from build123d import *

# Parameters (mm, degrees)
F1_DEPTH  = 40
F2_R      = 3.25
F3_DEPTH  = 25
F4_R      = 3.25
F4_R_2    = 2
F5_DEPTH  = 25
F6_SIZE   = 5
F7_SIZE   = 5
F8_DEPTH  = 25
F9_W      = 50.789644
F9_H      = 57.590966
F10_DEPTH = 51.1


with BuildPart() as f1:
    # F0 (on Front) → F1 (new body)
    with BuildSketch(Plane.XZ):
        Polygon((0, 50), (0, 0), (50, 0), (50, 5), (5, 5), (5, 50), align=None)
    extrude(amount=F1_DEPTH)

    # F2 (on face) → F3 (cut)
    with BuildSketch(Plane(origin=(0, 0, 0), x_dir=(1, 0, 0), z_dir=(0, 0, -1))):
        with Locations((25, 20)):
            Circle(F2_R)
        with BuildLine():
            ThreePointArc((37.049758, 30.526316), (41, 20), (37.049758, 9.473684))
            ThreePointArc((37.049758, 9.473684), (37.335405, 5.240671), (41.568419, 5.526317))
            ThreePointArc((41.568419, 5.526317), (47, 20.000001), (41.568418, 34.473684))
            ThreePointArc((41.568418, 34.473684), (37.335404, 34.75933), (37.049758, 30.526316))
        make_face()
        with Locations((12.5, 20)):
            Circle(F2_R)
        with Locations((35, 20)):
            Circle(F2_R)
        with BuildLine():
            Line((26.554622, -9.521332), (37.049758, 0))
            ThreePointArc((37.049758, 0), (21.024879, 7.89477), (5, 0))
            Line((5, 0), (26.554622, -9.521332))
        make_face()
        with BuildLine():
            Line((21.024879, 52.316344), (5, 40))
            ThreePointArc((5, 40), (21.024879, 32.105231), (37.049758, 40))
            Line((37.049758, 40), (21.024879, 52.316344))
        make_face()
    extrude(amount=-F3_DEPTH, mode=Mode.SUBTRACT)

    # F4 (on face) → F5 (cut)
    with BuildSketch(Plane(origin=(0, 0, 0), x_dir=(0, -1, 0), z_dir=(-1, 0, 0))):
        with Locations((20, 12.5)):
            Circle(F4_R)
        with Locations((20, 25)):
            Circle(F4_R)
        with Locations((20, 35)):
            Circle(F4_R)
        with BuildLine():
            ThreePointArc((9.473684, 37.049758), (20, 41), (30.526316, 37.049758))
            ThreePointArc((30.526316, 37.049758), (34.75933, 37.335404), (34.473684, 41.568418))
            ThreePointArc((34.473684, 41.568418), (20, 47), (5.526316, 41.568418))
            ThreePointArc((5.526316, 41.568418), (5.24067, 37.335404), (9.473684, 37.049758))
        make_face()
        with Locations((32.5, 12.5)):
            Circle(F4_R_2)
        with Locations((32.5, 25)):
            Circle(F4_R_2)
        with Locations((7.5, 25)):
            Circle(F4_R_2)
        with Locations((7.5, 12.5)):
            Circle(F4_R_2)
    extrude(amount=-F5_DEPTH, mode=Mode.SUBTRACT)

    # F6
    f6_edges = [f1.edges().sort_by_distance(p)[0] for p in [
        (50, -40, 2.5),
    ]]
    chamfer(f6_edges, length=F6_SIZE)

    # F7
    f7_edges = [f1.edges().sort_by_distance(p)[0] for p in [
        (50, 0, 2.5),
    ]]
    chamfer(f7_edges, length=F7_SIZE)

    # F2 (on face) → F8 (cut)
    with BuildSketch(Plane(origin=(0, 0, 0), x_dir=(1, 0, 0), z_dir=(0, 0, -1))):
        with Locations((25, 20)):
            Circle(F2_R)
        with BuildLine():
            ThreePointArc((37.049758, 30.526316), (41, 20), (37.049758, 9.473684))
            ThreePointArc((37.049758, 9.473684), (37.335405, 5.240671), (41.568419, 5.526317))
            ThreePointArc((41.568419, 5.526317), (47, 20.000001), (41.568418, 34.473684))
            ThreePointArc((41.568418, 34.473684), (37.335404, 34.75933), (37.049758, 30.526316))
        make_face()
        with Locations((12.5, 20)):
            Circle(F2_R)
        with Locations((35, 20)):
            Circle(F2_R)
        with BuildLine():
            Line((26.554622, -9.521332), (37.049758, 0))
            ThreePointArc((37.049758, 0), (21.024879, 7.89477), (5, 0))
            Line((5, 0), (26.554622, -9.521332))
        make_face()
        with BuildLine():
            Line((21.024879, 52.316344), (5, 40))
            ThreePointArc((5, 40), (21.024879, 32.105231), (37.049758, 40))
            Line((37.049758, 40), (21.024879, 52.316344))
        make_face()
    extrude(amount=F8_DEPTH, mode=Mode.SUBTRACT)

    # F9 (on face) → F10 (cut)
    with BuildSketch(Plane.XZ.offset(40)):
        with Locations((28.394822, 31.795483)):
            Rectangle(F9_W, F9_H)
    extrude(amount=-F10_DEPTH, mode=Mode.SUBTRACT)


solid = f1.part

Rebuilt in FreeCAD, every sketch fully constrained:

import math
import FreeCAD as App
import Part
import Sketcher


def edges_at(feature, points):
    """Names of the edges that pass closest to the given points."""
    edges = feature.Shape.Edges
    near = lambda p: min(range(len(edges)), key=lambda i: edges[i].distToShape(Part.Vertex(*p))[0])
    return sorted({f"Edge{near(p) + 1}" for p in points})

doc = App.newDocument("Part")
body = doc.addObject("PartDesign::Body", "Body")

# Sketch on XZ plane
sketch1 = body.newObject("Sketcher::SketchObject", "Sketch")
sketch1.AttachmentSupport = (doc.getObject("XZ_Plane"), [""])
sketch1.MapMode = "FlatFace"
sketch1.addGeometry(Part.LineSegment(App.Vector(0, 50, 0), App.Vector(0, 0, 0)), False)
sketch1.addGeometry(Part.LineSegment(App.Vector(0, 0, 0), App.Vector(50, 0, 0)), False)
sketch1.addGeometry(Part.LineSegment(App.Vector(50, 0, 0), App.Vector(50, 5, 0)), False)
sketch1.addGeometry(Part.LineSegment(App.Vector(50, 5, 0), App.Vector(5, 5, 0)), False)
sketch1.addGeometry(Part.LineSegment(App.Vector(5, 5, 0), App.Vector(5, 50, 0)), False)
sketch1.addGeometry(Part.LineSegment(App.Vector(5, 50, 0), App.Vector(0, 50, 0)), False)
sketch1.addConstraint(Sketcher.Constraint("Coincident", 0, 2, 1, 1))
sketch1.addConstraint(Sketcher.Constraint("Coincident", 1, 2, 2, 1))
sketch1.addConstraint(Sketcher.Constraint("Coincident", 2, 2, 3, 1))
sketch1.addConstraint(Sketcher.Constraint("Coincident", 3, 2, 4, 1))
sketch1.addConstraint(Sketcher.Constraint("Coincident", 4, 2, 5, 1))
sketch1.addConstraint(Sketcher.Constraint("Coincident", 5, 2, 0, 1))
sketch1.addConstraint(Sketcher.Constraint("Vertical", 0))
sketch1.addConstraint(Sketcher.Constraint("Horizontal", 1))
sketch1.addConstraint(Sketcher.Constraint("Vertical", 2))
sketch1.addConstraint(Sketcher.Constraint("Horizontal", 3))
sketch1.addConstraint(Sketcher.Constraint("Vertical", 4))
sketch1.addConstraint(Sketcher.Constraint("Horizontal", 5))
sketch1.addConstraint(Sketcher.Constraint("Coincident", 0, 2, -1, 1))
sketch1.addConstraint(Sketcher.Constraint("Equal", 1, 0))
sketch1.addConstraint(Sketcher.Constraint("Equal", 5, 2))
sketch1.addConstraint(Sketcher.Constraint("DistanceX", 1, 1, 1, 2, 50.0))
sketch1.addConstraint(Sketcher.Constraint("DistanceX", 3, 2, 3, 1, 45.0))
pad1 = body.newObject("PartDesign::Pad", "Pad")
pad1.Profile = sketch1
pad1.Length = 40

# Sketch on XY plane
sketch2 = body.newObject("Sketcher::SketchObject", "Sketch001")
sketch2.AttachmentSupport = (doc.getObject("XY_Plane"), [""])
sketch2.MapMode = "FlatFace"
sketch2.addGeometry(Part.Circle(App.Vector(25, -20, 0), App.Vector(0, 0, 1), 3.25), False)
sketch2.addGeometry(Part.ArcOfCircle(Part.Circle(App.Vector(25, -20, 0), App.Vector(0, 0, 1), 16), math.radians(-41.139513), math.radians(41.139513)), False)
sketch2.addGeometry(Part.ArcOfCircle(Part.Circle(App.Vector(39.309089, -7.500001, 0), App.Vector(0, 0, 1), 3), math.radians(41.139504), math.radians(221.139476)), False)
sketch2.addGeometry(Part.ArcOfCircle(Part.Circle(App.Vector(24.999999, -20, 0), App.Vector(0, 0, 1), 22.000001), math.radians(-41.139509), math.radians(41.139505)), False)
sketch2.addGeometry(Part.ArcOfCircle(Part.Circle(App.Vector(39.309088, -32.5, 0), App.Vector(0, 0, 1), 3), math.radians(138.860497), math.radians(318.860497)), False)
sketch2.addGeometry(Part.Circle(App.Vector(12.5, -20, 0), App.Vector(0, 0, 1), 3.25), False)
sketch2.addGeometry(Part.Circle(App.Vector(35, -20, 0), App.Vector(0, 0, 1), 3.25), False)
sketch2.addGeometry(Part.LineSegment(App.Vector(26.554622, 9.521332, 0), App.Vector(37.049758, 0, 0)), False)
sketch2.addGeometry(Part.ArcOfCircle(Part.Circle(App.Vector(21.024879, 12.316341, 0), App.Vector(0, 0, 1), 20.211111), math.radians(-142.454977), math.radians(-37.545023)), False)
sketch2.addGeometry(Part.LineSegment(App.Vector(5, 0, 0), App.Vector(26.554622, 9.521332, 0)), False)
sketch2.addGeometry(Part.LineSegment(App.Vector(21.024879, -52.316344, 0), App.Vector(5, -40, 0)), False)
sketch2.addGeometry(Part.ArcOfCircle(Part.Circle(App.Vector(21.024879, -52.316343, 0), App.Vector(0, 0, 1), 20.211112), math.radians(37.545028), math.radians(142.454972)), False)
sketch2.addGeometry(Part.LineSegment(App.Vector(37.049758, -40, 0), App.Vector(21.024879, -52.316344, 0)), False)
sketch2.addConstraint(Sketcher.Constraint("Tangent", 1, 2, 2, 2))
sketch2.addConstraint(Sketcher.Constraint("Tangent", 2, 1, 3, 2))
sketch2.addConstraint(Sketcher.Constraint("Tangent", 3, 1, 4, 2))
sketch2.addConstraint(Sketcher.Constraint("Tangent", 4, 1, 1, 1))
sketch2.addConstraint(Sketcher.Constraint("Coincident", 7, 2, 8, 2))
sketch2.addConstraint(Sketcher.Constraint("Coincident", 8, 1, 9, 1))
sketch2.addConstraint(Sketcher.Constraint("Coincident", 9, 2, 7, 1))
sketch2.addConstraint(Sketcher.Constraint("Coincident", 10, 2, 11, 2))
sketch2.addConstraint(Sketcher.Constraint("Coincident", 11, 1, 12, 1))
sketch2.addConstraint(Sketcher.Constraint("Coincident", 12, 2, 10, 1))
sketch2.addConstraint(Sketcher.Constraint("Coincident", 1, 3, 0, 3))
sketch2.addConstraint(Sketcher.Constraint("Coincident", 3, 3, 0, 3))
sketch2.addConstraint(Sketcher.Constraint("Coincident", 12, 2, 11, 3))
sketch2.addConstraint(Sketcher.Constraint("Equal", 0, 5))
sketch2.addConstraint(Sketcher.Constraint("Equal", 5, 6))
sketch2.addConstraint(Sketcher.Constraint("Equal", 8, 11))
sketch2.addConstraint(Sketcher.Constraint("PointOnObject", 7, 2, -1))
sketch2.addConstraint(Sketcher.Constraint("PointOnObject", 8, 1, -1))
sketch2.addConstraint(Sketcher.Constraint("Horizontal", 3, 3, 5, 3))
sketch2.addConstraint(Sketcher.Constraint("Horizontal", 5, 3, 6, 3))
sketch2.addConstraint(Sketcher.Constraint("Horizontal", 10, 2, 11, 1))
sketch2.addConstraint(Sketcher.Constraint("Vertical", 2, 3, 4, 3))
sketch2.addConstraint(Sketcher.Constraint("Vertical", 8, 3, 11, 3))
sketch2.addConstraint(Sketcher.Constraint("Vertical", 4, 1, 7, 2))
sketch2.addConstraint(Sketcher.Constraint("Vertical", 8, 1, 10, 2))
sketch2.addConstraint(Sketcher.Constraint("Radius", 1, 16.0))
sketch2.addConstraint(Sketcher.Constraint("Radius", 2, 3.0))
sketch2.addConstraint(Sketcher.Constraint("Diameter", 0, 6.5))
sketch2.addConstraint(Sketcher.Constraint("DistanceX", -1, 1, 0, 3, 25.0))
sketch2.addConstraint(Sketcher.Constraint("DistanceY", 0, 3, -1, 1, 20.0))
sketch2.addConstraint(Sketcher.Constraint("DistanceX", -1, 1, 6, 3, 35.0))
sketch2.addConstraint(Sketcher.Constraint("DistanceX", -1, 1, 8, 1, 5.0))
sketch2.addConstraint(Sketcher.Constraint("DistanceY", 10, 2, -1, 1, 40.0))
sketch2.addConstraint(Sketcher.Constraint("DistanceY", 4, 3, 2, 3, 24.999999))
sketch2.addConstraint(Sketcher.Constraint("DistanceX", -1, 1, 5, 3, 12.5))
sketch2.addConstraint(Sketcher.Constraint("Radius", 8, 20.211111))
sketch2.addConstraint(Sketcher.Constraint("Distance", 7, 14.17052))
sketch2.addConstraint(Sketcher.Constraint("DistanceX", -1, 1, 9, 2, 26.554622))
pocket1 = body.newObject("PartDesign::Pocket", "Pocket")
pocket1.Profile = sketch2
pocket1.Length = 25
pocket1.Reversed = True

# Sketch on YZ plane
sketch3 = body.newObject("Sketcher::SketchObject", "Sketch002")
sketch3.AttachmentSupport = (doc.getObject("YZ_Plane"), [""])
sketch3.MapMode = "FlatFace"
sketch3.addGeometry(Part.Circle(App.Vector(-20, 12.5, 0), App.Vector(0, 0, 1), 3.25), False)
sketch3.addGeometry(Part.Circle(App.Vector(-20, 25, 0), App.Vector(0, 0, 1), 3.25), False)
sketch3.addGeometry(Part.Circle(App.Vector(-20, 35, 0), App.Vector(0, 0, 1), 3.25), False)
sketch3.addGeometry(Part.ArcOfCircle(Part.Circle(App.Vector(-20, 25, 0), App.Vector(0, 0, 1), 16), math.radians(48.860487), math.radians(131.139513)), False)
sketch3.addGeometry(Part.ArcOfCircle(Part.Circle(App.Vector(-32.5, 39.309088, 0), App.Vector(0, 0, 1), 3), math.radians(131.139503), math.radians(311.139503)), False)
sketch3.addGeometry(Part.ArcOfCircle(Part.Circle(App.Vector(-20, 25, 0), App.Vector(0, 0, 1), 22), math.radians(48.860491), math.radians(131.139509)), False)
sketch3.addGeometry(Part.ArcOfCircle(Part.Circle(App.Vector(-7.5, 39.309088, 0), App.Vector(0, 0, 1), 3), math.radians(-131.139503), math.radians(48.860497)), False)
sketch3.addGeometry(Part.Circle(App.Vector(-32.5, 12.5, 0), App.Vector(0, 0, 1), 2), False)
sketch3.addGeometry(Part.Circle(App.Vector(-32.5, 25, 0), App.Vector(0, 0, 1), 2), False)
sketch3.addGeometry(Part.Circle(App.Vector(-7.5, 25, 0), App.Vector(0, 0, 1), 2), False)
sketch3.addGeometry(Part.Circle(App.Vector(-7.5, 12.5, 0), App.Vector(0, 0, 1), 2), False)
sketch3.addConstraint(Sketcher.Constraint("Tangent", 3, 2, 4, 2))
sketch3.addConstraint(Sketcher.Constraint("Tangent", 4, 1, 5, 2))
sketch3.addConstraint(Sketcher.Constraint("Tangent", 5, 1, 6, 2))
sketch3.addConstraint(Sketcher.Constraint("Tangent", 6, 1, 3, 1))
sketch3.addConstraint(Sketcher.Constraint("Coincident", 3, 3, 1, 3))
sketch3.addConstraint(Sketcher.Constraint("Coincident", 5, 3, 1, 3))
sketch3.addConstraint(Sketcher.Constraint("Equal", 0, 1))
sketch3.addConstraint(Sketcher.Constraint("Equal", 1, 2))
sketch3.addConstraint(Sketcher.Constraint("Equal", 7, 8))
sketch3.addConstraint(Sketcher.Constraint("Equal", 8, 9))
sketch3.addConstraint(Sketcher.Constraint("Equal", 9, 10))
sketch3.addConstraint(Sketcher.Constraint("Horizontal", 4, 3, 6, 3))
sketch3.addConstraint(Sketcher.Constraint("Horizontal", 0, 3, 7, 3))
sketch3.addConstraint(Sketcher.Constraint("Horizontal", 5, 3, 8, 3))
sketch3.addConstraint(Sketcher.Constraint("Horizontal", 8, 3, 9, 3))
sketch3.addConstraint(Sketcher.Constraint("Horizontal", 7, 3, 10, 3))
sketch3.addConstraint(Sketcher.Constraint("Vertical", 0, 3, 1, 3))
sketch3.addConstraint(Sketcher.Constraint("Vertical", 1, 3, 2, 3))
sketch3.addConstraint(Sketcher.Constraint("Vertical", 4, 3, 7, 3))
sketch3.addConstraint(Sketcher.Constraint("Vertical", 7, 3, 8, 3))
sketch3.addConstraint(Sketcher.Constraint("Vertical", 6, 3, 9, 3))
sketch3.addConstraint(Sketcher.Constraint("Vertical", 9, 3, 10, 3))
sketch3.addConstraint(Sketcher.Constraint("Diameter", 7, 4.0))
sketch3.addConstraint(Sketcher.Constraint("Radius", 3, 16.0))
sketch3.addConstraint(Sketcher.Constraint("Radius", 4, 3.0))
sketch3.addConstraint(Sketcher.Constraint("Diameter", 0, 6.5))
sketch3.addConstraint(Sketcher.Constraint("DistanceX", 0, 3, -1, 1, 20.0))
sketch3.addConstraint(Sketcher.Constraint("DistanceY", -1, 1, 1, 3, 25.0))
sketch3.addConstraint(Sketcher.Constraint("DistanceY", -1, 1, 2, 3, 35.0))
sketch3.addConstraint(Sketcher.Constraint("DistanceX", 4, 3, 6, 3, 25.0))
sketch3.addConstraint(Sketcher.Constraint("DistanceY", -1, 1, 0, 3, 12.5))
pocket2 = body.newObject("PartDesign::Pocket", "Pocket001")
pocket2.Profile = sketch3
pocket2.Length = 25
pocket2.Reversed = True
doc.recompute()

chamfer = body.newObject("PartDesign::Chamfer", "Chamfer")
chamfer.Base = (pocket2, edges_at(pocket2, [(50, -40, 2.5)]))
chamfer.Size = 5
doc.recompute()

chamfer2 = body.newObject("PartDesign::Chamfer", "Chamfer001")
chamfer2.Base = (chamfer, edges_at(chamfer, [(50, 0, 2.5)]))
chamfer2.Size = 5

# Sketch on XY plane
sketch4 = body.newObject("Sketcher::SketchObject", "Sketch003")
sketch4.AttachmentSupport = (doc.getObject("XY_Plane"), [""])
sketch4.MapMode = "FlatFace"
sketch4.addGeometry(Part.Circle(App.Vector(25, -20, 0), App.Vector(0, 0, 1), 3.25), False)
sketch4.addGeometry(Part.ArcOfCircle(Part.Circle(App.Vector(25, -20, 0), App.Vector(0, 0, 1), 16), math.radians(-41.139513), math.radians(41.139513)), False)
sketch4.addGeometry(Part.ArcOfCircle(Part.Circle(App.Vector(39.309089, -7.500001, 0), App.Vector(0, 0, 1), 3), math.radians(41.139504), math.radians(221.139476)), False)
sketch4.addGeometry(Part.ArcOfCircle(Part.Circle(App.Vector(24.999999, -20, 0), App.Vector(0, 0, 1), 22.000001), math.radians(-41.139509), math.radians(41.139505)), False)
sketch4.addGeometry(Part.ArcOfCircle(Part.Circle(App.Vector(39.309088, -32.5, 0), App.Vector(0, 0, 1), 3), math.radians(138.860497), math.radians(318.860497)), False)
sketch4.addGeometry(Part.Circle(App.Vector(12.5, -20, 0), App.Vector(0, 0, 1), 3.25), False)
sketch4.addGeometry(Part.Circle(App.Vector(35, -20, 0), App.Vector(0, 0, 1), 3.25), False)
sketch4.addGeometry(Part.LineSegment(App.Vector(26.554622, 9.521332, 0), App.Vector(37.049758, 0, 0)), False)
sketch4.addGeometry(Part.ArcOfCircle(Part.Circle(App.Vector(21.024879, 12.316341, 0), App.Vector(0, 0, 1), 20.211111), math.radians(-142.454977), math.radians(-37.545023)), False)
sketch4.addGeometry(Part.LineSegment(App.Vector(5, 0, 0), App.Vector(26.554622, 9.521332, 0)), False)
sketch4.addGeometry(Part.LineSegment(App.Vector(21.024879, -52.316344, 0), App.Vector(5, -40, 0)), False)
sketch4.addGeometry(Part.ArcOfCircle(Part.Circle(App.Vector(21.024879, -52.316343, 0), App.Vector(0, 0, 1), 20.211112), math.radians(37.545028), math.radians(142.454972)), False)
sketch4.addGeometry(Part.LineSegment(App.Vector(37.049758, -40, 0), App.Vector(21.024879, -52.316344, 0)), False)
sketch4.addConstraint(Sketcher.Constraint("Tangent", 1, 2, 2, 2))
sketch4.addConstraint(Sketcher.Constraint("Tangent", 2, 1, 3, 2))
sketch4.addConstraint(Sketcher.Constraint("Tangent", 3, 1, 4, 2))
sketch4.addConstraint(Sketcher.Constraint("Tangent", 4, 1, 1, 1))
sketch4.addConstraint(Sketcher.Constraint("Coincident", 7, 2, 8, 2))
sketch4.addConstraint(Sketcher.Constraint("Coincident", 8, 1, 9, 1))
sketch4.addConstraint(Sketcher.Constraint("Coincident", 9, 2, 7, 1))
sketch4.addConstraint(Sketcher.Constraint("Coincident", 10, 2, 11, 2))
sketch4.addConstraint(Sketcher.Constraint("Coincident", 11, 1, 12, 1))
sketch4.addConstraint(Sketcher.Constraint("Coincident", 12, 2, 10, 1))
sketch4.addConstraint(Sketcher.Constraint("Coincident", 1, 3, 0, 3))
sketch4.addConstraint(Sketcher.Constraint("Coincident", 3, 3, 0, 3))
sketch4.addConstraint(Sketcher.Constraint("Coincident", 12, 2, 11, 3))
sketch4.addConstraint(Sketcher.Constraint("Equal", 0, 5))
sketch4.addConstraint(Sketcher.Constraint("Equal", 5, 6))
sketch4.addConstraint(Sketcher.Constraint("Equal", 8, 11))
sketch4.addConstraint(Sketcher.Constraint("PointOnObject", 7, 2, -1))
sketch4.addConstraint(Sketcher.Constraint("PointOnObject", 8, 1, -1))
sketch4.addConstraint(Sketcher.Constraint("Horizontal", 3, 3, 5, 3))
sketch4.addConstraint(Sketcher.Constraint("Horizontal", 5, 3, 6, 3))
sketch4.addConstraint(Sketcher.Constraint("Horizontal", 10, 2, 11, 1))
sketch4.addConstraint(Sketcher.Constraint("Vertical", 2, 3, 4, 3))
sketch4.addConstraint(Sketcher.Constraint("Vertical", 8, 3, 11, 3))
sketch4.addConstraint(Sketcher.Constraint("Vertical", 4, 1, 7, 2))
sketch4.addConstraint(Sketcher.Constraint("Vertical", 8, 1, 10, 2))
sketch4.addConstraint(Sketcher.Constraint("Radius", 1, 16.0))
sketch4.addConstraint(Sketcher.Constraint("Radius", 2, 3.0))
sketch4.addConstraint(Sketcher.Constraint("Diameter", 0, 6.5))
sketch4.addConstraint(Sketcher.Constraint("DistanceX", -1, 1, 0, 3, 25.0))
sketch4.addConstraint(Sketcher.Constraint("DistanceY", 0, 3, -1, 1, 20.0))
sketch4.addConstraint(Sketcher.Constraint("DistanceX", -1, 1, 6, 3, 35.0))
sketch4.addConstraint(Sketcher.Constraint("DistanceX", -1, 1, 8, 1, 5.0))
sketch4.addConstraint(Sketcher.Constraint("DistanceY", 10, 2, -1, 1, 40.0))
sketch4.addConstraint(Sketcher.Constraint("DistanceY", 4, 3, 2, 3, 24.999999))
sketch4.addConstraint(Sketcher.Constraint("DistanceX", -1, 1, 5, 3, 12.5))
sketch4.addConstraint(Sketcher.Constraint("Radius", 8, 20.211111))
sketch4.addConstraint(Sketcher.Constraint("Distance", 7, 14.17052))
sketch4.addConstraint(Sketcher.Constraint("DistanceX", -1, 1, 9, 2, 26.554622))
pocket3 = body.newObject("PartDesign::Pocket", "Pocket002")
pocket3.Profile = sketch4
pocket3.Length = 25

# Sketch on XZ plane
sketch5 = body.newObject("Sketcher::SketchObject", "Sketch004")
sketch5.AttachmentSupport = (doc.getObject("XZ_Plane"), [""])
sketch5.MapMode = "FlatFace"
sketch5.AttachmentOffset = App.Placement(App.Vector(0, 0, 40), App.Rotation())
sketch5.addGeometry(Part.LineSegment(App.Vector(3, 60.590966, 0), App.Vector(3, 3, 0)), False)
sketch5.addGeometry(Part.LineSegment(App.Vector(3, 3, 0), App.Vector(53.789644, 3, 0)), False)
sketch5.addGeometry(Part.LineSegment(App.Vector(53.789644, 3, 0), App.Vector(53.789644, 60.590966, 0)), False)
sketch5.addGeometry(Part.LineSegment(App.Vector(53.789644, 60.590966, 0), App.Vector(3, 60.590966, 0)), False)
sketch5.addConstraint(Sketcher.Constraint("Coincident", 0, 2, 1, 1))
sketch5.addConstraint(Sketcher.Constraint("Coincident", 1, 2, 2, 1))
sketch5.addConstraint(Sketcher.Constraint("Coincident", 2, 2, 3, 1))
sketch5.addConstraint(Sketcher.Constraint("Coincident", 3, 2, 0, 1))
sketch5.addConstraint(Sketcher.Constraint("Vertical", 0))
sketch5.addConstraint(Sketcher.Constraint("Horizontal", 1))
sketch5.addConstraint(Sketcher.Constraint("Vertical", 2))
sketch5.addConstraint(Sketcher.Constraint("Horizontal", 3))
sketch5.addConstraint(Sketcher.Constraint("DistanceX", -1, 1, 0, 2, 3.0))
sketch5.addConstraint(Sketcher.Constraint("DistanceY", -1, 1, 0, 2, 3.0))
sketch5.addConstraint(Sketcher.Constraint("DistanceX", 1, 1, 1, 2, 50.789644))
sketch5.addConstraint(Sketcher.Constraint("DistanceY", 0, 2, 0, 1, 57.590966))
pocket4 = body.newObject("PartDesign::Pocket", "Pocket003")
pocket4.Profile = sketch5
pocket4.Length = 51.1

doc.recompute()
